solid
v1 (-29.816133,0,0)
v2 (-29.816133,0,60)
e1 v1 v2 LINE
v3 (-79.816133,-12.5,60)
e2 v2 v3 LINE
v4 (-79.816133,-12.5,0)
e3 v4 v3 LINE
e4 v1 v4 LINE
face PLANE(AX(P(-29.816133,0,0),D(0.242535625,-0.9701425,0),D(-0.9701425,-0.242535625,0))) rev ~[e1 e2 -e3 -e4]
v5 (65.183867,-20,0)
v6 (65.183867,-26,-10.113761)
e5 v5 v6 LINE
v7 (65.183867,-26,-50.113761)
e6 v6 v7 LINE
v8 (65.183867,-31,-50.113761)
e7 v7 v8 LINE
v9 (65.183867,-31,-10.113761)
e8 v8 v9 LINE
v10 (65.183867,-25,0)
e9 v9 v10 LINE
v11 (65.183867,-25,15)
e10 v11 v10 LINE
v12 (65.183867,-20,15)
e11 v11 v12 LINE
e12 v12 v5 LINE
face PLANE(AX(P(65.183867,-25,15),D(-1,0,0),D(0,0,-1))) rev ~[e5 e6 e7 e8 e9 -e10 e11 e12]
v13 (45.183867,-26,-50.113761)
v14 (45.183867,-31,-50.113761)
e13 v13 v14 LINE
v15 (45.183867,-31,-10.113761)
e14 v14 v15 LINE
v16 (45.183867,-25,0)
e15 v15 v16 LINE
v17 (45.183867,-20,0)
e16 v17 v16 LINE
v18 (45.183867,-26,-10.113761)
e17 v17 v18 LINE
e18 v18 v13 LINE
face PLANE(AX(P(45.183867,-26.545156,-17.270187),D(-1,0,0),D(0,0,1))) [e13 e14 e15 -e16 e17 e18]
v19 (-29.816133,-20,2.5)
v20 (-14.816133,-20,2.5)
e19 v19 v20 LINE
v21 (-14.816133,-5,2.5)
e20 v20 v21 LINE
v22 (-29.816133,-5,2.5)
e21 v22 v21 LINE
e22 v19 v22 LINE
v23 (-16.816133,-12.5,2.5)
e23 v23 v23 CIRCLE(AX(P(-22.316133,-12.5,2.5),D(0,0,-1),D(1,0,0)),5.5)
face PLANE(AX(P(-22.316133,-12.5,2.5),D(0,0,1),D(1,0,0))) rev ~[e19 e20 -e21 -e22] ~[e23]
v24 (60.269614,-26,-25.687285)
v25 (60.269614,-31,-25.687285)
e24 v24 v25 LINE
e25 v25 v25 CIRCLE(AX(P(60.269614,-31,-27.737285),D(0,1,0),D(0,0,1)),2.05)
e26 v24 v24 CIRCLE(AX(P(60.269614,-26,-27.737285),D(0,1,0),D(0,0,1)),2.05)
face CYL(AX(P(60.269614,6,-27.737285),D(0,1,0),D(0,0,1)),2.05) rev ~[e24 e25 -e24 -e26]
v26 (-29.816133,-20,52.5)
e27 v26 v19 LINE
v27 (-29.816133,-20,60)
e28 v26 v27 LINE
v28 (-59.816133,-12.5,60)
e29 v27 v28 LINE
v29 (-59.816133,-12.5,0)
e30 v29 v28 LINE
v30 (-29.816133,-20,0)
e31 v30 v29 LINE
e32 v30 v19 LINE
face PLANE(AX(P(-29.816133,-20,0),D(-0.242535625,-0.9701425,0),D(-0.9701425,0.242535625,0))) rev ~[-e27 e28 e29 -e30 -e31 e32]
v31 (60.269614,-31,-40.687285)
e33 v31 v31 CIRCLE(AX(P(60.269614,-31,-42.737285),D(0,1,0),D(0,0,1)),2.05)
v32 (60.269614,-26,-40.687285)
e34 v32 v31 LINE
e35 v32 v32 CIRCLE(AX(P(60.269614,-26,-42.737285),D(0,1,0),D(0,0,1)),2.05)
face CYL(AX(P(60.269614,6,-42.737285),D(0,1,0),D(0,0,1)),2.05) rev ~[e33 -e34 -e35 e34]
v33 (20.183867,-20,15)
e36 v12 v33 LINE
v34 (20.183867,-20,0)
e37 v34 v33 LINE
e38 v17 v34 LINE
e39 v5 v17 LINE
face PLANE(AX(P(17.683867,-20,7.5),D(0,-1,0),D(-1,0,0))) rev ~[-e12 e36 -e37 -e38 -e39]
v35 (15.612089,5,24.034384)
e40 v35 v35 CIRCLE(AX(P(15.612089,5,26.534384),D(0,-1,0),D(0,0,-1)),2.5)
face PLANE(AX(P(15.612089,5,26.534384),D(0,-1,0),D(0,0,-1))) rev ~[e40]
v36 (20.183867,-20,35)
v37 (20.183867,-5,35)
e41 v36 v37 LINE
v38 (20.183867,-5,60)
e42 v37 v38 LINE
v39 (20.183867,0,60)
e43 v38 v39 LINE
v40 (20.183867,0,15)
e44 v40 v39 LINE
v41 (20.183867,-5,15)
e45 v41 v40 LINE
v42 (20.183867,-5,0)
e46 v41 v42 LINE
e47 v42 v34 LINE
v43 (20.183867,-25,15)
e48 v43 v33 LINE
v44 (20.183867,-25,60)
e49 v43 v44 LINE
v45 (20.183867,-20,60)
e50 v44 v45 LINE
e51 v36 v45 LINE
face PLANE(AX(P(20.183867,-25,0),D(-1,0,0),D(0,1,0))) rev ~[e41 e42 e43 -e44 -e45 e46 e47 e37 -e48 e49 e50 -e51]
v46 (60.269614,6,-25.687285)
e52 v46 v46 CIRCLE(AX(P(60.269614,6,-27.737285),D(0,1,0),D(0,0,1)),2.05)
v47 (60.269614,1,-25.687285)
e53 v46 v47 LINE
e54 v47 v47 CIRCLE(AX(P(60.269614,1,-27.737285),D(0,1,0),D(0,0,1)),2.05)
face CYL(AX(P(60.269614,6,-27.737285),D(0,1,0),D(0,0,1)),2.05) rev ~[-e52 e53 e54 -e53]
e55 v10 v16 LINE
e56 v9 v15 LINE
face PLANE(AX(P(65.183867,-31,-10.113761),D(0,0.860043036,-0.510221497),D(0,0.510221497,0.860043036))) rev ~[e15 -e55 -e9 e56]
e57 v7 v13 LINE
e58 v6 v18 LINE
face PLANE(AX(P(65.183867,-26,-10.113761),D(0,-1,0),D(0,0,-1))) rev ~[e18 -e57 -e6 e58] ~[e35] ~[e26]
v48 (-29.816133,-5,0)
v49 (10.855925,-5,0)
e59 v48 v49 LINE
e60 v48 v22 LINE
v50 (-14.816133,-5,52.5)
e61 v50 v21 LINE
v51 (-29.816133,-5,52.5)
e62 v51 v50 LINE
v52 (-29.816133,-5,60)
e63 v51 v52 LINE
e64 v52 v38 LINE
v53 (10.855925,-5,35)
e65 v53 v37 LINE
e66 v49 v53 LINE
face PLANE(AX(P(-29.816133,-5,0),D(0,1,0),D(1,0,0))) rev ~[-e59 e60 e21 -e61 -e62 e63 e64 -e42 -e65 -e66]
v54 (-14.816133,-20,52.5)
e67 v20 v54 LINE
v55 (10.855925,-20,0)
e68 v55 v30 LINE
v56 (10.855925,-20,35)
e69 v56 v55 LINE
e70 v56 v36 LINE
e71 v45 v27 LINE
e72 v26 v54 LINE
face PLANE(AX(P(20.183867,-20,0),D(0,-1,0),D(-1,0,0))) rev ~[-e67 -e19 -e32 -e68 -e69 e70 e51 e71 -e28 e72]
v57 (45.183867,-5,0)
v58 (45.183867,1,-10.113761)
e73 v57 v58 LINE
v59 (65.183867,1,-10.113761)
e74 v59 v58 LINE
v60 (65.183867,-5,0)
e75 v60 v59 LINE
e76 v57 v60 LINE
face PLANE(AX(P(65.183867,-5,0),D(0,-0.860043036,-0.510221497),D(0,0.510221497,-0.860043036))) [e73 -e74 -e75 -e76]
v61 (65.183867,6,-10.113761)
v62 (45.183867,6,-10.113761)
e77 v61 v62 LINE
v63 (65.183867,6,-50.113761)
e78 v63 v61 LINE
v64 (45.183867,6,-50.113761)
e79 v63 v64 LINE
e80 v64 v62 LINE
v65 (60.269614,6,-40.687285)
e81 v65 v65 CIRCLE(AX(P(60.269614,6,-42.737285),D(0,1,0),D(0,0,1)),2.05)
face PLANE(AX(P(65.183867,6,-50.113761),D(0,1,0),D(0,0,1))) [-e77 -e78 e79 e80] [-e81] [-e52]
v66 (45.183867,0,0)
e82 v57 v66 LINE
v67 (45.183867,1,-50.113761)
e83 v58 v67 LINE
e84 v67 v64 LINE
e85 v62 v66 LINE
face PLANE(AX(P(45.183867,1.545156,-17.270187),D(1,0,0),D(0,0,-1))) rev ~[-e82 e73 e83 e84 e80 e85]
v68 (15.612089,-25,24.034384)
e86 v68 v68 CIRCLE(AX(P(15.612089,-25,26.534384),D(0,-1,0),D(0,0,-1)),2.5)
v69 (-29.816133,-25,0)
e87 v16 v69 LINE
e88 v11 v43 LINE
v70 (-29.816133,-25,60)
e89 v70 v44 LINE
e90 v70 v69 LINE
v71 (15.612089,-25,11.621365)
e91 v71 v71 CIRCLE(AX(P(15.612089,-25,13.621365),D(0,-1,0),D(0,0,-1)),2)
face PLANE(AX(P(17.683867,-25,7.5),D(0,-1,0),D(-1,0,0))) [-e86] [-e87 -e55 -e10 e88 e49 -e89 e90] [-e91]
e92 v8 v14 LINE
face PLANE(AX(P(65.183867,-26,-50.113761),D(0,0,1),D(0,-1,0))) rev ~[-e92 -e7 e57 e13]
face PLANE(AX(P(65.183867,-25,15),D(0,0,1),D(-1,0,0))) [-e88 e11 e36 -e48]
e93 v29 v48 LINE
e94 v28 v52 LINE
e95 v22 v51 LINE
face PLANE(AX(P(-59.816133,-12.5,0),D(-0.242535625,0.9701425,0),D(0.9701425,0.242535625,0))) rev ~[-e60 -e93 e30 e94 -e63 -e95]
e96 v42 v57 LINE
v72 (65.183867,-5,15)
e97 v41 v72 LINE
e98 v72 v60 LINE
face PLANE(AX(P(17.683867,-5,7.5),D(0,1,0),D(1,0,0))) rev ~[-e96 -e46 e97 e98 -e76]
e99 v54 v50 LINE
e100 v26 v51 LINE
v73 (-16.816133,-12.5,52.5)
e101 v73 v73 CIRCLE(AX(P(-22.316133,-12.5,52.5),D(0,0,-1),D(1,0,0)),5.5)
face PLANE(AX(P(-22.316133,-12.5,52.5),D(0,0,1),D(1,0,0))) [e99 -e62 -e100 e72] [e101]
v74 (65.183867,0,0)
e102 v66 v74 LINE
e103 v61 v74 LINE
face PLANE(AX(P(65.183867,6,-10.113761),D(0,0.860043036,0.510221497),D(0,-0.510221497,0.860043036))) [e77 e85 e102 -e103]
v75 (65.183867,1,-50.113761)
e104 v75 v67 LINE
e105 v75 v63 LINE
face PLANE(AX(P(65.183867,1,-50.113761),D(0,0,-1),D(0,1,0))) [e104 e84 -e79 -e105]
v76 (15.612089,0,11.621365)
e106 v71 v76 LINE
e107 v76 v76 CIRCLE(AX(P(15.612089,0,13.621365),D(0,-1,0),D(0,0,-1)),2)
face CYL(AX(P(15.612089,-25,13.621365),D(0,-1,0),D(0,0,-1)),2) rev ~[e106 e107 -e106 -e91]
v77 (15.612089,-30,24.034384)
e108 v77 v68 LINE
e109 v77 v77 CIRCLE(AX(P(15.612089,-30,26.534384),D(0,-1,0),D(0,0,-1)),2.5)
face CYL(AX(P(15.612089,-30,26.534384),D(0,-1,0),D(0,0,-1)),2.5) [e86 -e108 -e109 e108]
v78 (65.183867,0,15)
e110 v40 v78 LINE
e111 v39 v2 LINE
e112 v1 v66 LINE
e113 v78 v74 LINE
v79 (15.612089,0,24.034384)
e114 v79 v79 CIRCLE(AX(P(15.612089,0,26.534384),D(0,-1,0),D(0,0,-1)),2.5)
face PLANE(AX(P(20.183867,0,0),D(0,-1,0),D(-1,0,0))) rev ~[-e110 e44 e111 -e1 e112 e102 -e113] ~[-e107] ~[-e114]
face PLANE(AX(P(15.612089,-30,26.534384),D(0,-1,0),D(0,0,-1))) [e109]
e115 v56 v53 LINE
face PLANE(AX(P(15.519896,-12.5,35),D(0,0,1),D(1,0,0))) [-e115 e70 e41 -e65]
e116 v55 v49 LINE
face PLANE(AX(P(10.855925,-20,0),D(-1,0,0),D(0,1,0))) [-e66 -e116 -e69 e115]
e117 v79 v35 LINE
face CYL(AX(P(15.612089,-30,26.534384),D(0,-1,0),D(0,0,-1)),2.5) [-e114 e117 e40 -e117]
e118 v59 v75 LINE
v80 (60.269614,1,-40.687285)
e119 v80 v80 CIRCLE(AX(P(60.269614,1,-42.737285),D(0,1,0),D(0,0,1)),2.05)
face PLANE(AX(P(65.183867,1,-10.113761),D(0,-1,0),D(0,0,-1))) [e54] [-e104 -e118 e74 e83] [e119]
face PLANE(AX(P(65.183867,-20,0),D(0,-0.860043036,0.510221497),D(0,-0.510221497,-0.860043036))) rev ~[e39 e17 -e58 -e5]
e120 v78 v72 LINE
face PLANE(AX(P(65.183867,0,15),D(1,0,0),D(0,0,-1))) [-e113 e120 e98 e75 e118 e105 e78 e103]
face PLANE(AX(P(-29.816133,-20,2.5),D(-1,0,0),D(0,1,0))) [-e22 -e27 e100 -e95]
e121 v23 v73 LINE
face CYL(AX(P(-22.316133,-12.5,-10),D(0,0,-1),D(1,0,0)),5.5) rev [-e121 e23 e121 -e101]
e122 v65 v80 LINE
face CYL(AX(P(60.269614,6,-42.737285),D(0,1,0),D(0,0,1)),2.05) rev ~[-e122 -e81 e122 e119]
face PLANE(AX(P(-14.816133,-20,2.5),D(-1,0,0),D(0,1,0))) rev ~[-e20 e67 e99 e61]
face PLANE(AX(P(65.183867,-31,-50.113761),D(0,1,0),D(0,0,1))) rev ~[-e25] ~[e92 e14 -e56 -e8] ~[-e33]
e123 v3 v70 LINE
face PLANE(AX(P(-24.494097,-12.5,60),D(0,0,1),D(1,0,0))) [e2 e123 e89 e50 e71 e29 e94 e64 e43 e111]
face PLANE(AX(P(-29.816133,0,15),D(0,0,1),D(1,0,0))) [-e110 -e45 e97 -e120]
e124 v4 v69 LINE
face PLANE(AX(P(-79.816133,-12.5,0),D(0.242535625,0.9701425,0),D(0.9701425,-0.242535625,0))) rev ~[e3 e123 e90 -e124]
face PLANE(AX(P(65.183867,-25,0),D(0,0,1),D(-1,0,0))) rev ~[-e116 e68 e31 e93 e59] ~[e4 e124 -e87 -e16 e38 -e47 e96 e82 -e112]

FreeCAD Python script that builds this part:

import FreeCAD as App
import Part
import Sketcher

V = App.Vector
Q = App.Units.Quantity


def add_polygon(sketch, points):
    """Adds a closed chain of lines whose ends are joined by coincident constraints."""
    first, n = sketch.GeometryCount, len(points)
    for a, b in zip(points, points[1:] + points[:1]):
        sketch.addGeometry(Part.LineSegment(App.Vector(*a, 0), App.Vector(*b, 0)), False)
    for i in range(n):
        sketch.addConstraint(Sketcher.Constraint("Coincident", first + i, 2, first + (i + 1) % n, 1))

doc = App.newDocument("Part")
body = doc.addObject("PartDesign::Body", "Body")

# Sketch on XY plane
sketch1 = doc.addObject("Sketcher::SketchObject", "Sketch")
body.addObject(sketch1)
sketch1.AttachmentSupport = (doc.XY_Plane, [""])
sketch1.MapMode = "FlatFace"
add_polygon(sketch1, [(-30, -5), (20, -5), (20, 0), (-30, 0), (-80, -12), (-30, -25), (20, -25), (20, -20), (-30, -20), (-60, -12)])  # lines 0-9
sketch1.addConstraint(Sketcher.Constraint("Horizontal", 0))
sketch1.addConstraint(Sketcher.Constraint("Vertical", 1))
sketch1.addConstraint(Sketcher.Constraint("Horizontal", 2))
sketch1.addConstraint(Sketcher.Constraint("Horizontal", 5))
sketch1.addConstraint(Sketcher.Constraint("Vertical", 6))
sketch1.addConstraint(Sketcher.Constraint("Horizontal", 7))
sketch1.addConstraint(Sketcher.Constraint("PointOnObject", 1, 2, -1))
sketch1.addConstraint(Sketcher.Constraint("Parallel", 4, 8))
sketch1.addConstraint(Sketcher.Constraint("Parallel", 3, 9))
sketch1.addConstraint(Sketcher.Constraint("Horizontal", 3, 2, 8, 2))
sketch1.addConstraint(Sketcher.Constraint("Vertical", 2, 2, 4, 2))
sketch1.addConstraint(Sketcher.Constraint("Vertical", 1, 2, 5, 2))
sketch1.addConstraint(Sketcher.Constraint("Vertical", 4, 2, 7, 2))
sketch1.addConstraint(Sketcher.Constraint("Vertical", 7, 2, 9, 2))
sketch1.addConstraint(Sketcher.Constraint("Equal", 1, 6))
sketch1.addConstraint(Sketcher.Constraint("DistanceX", 0, 1, 0, 2, Q("50 mm")))
sketch1.addConstraint(Sketcher.Constraint("DistanceY", 1, 1, 1, 2, Q("5 mm")))
sketch1.addConstraint(Sketcher.Constraint("DistanceY", 4, 2, -1, 1, Q("25 mm")))
sketch1.addConstraint(Sketcher.Constraint("DistanceX", 3, 2, 2, 2, Q("50 mm")))
sketch1.addConstraint(Sketcher.Constraint("DistanceX", -1, 1, 0, 2, Q("20.183867 mm")))
pad1 = doc.addObject("PartDesign::Pad", "Pad")
body.addObject(pad1)
pad1.Profile = sketch1
pad1.Length = 60

# Sketch on XY plane
sketch2 = doc.addObject("Sketcher::SketchObject", "Sketch001")
body.addObject(sketch2)
sketch2.AttachmentSupport = (doc.XY_Plane, [""])
sketch2.MapMode = "FlatFace"
sketch2.AttachmentOffset = App.Placement(V(0, 0, 2.5), App.Rotation())
add_polygon(sketch2, [(-30, -5), (-30, -20), (-15, -20), (-15, -5)])  # lines 0-3
sketch2.addConstraint(Sketcher.Constraint("Vertical", 0))
sketch2.addConstraint(Sketcher.Constraint("Horizontal", 1))
sketch2.addConstraint(Sketcher.Constraint("Vertical", 2))
sketch2.addConstraint(Sketcher.Constraint("Horizontal", 3))
sketch2.addConstraint(Sketcher.Constraint("Equal", 3, 0))
sketch2.addConstraint(Sketcher.Constraint("DistanceX", 1, 1, 1, 2, Q("15 mm")))
sketch2.addConstraint(Sketcher.Constraint("DistanceY", 0, 2, -1, 1, Q("20 mm")))
sketch2.addConstraint(Sketcher.Constraint("DistanceX", 0, 2, -1, 1, Q("29.816133 mm")))
pad2 = doc.addObject("PartDesign::Pad", "Pad001")
body.addObject(pad2)
pad2.Profile = sketch2
pad2.Length = 50

# Sketch on XY plane
sketch3 = doc.addObject("Sketcher::SketchObject", "Sketch002")
body.addObject(sketch3)
sketch3.AttachmentSupport = (doc.XY_Plane, [""])
sketch3.MapMode = "FlatFace"
sketch3.AttachmentOffset = App.Placement(V(0, 0, -10), App.Rotation())
sketch3.addGeometry(Part.Circle(V(-22, -12, 0), V(0, 0, 1), 6), False)
sketch3.addConstraint(Sketcher.Constraint("Diameter", 0, Q("11 mm")))
sketch3.addConstraint(Sketcher.Constraint("DistanceY", 0, 3, -1, 1, Q("12.5 mm")))
sketch3.addConstraint(Sketcher.Constraint("DistanceX", 0, 3, -1, 1, Q("22.316133 mm")))
pocket1 = doc.addObject("PartDesign::Pocket", "Pocket")
body.addObject(pocket1)
pocket1.Profile = sketch3
pocket1.Length = 105
pocket1.Reversed = True

# Sketch on XY plane
sketch4 = doc.addObject("Sketcher::SketchObject", "Sketch003")
body.addObject(sketch4)
sketch4.AttachmentSupport = (doc.XY_Plane, [""])
sketch4.MapMode = "FlatFace"
add_polygon(sketch4, [(11, -5), (11, -20), (20, -20), (20, -5)])  # lines 0-3
sketch4.addConstraint(Sketcher.Constraint("Vertical", 0))
sketch4.addConstraint(Sketcher.Constraint("Horizontal", 1))
sketch4.addConstraint(Sketcher.Constraint("Vertical", 2))
sketch4.addConstraint(Sketcher.Constraint("Horizontal", 3))
sketch4.addConstraint(Sketcher.Constraint("DistanceY", 0, 2, 0, 1, Q("15 mm")))
sketch4.addConstraint(Sketcher.Constraint("DistanceY", 0, 2, -1, 1, Q("20 mm")))
sketch4.addConstraint(Sketcher.Constraint("DistanceX", 1, 1, 1, 2, Q("9.327942 mm")))
sketch4.addConstraint(Sketcher.Constraint("DistanceX", -1, 1, 0, 2, Q("10.855925 mm")))
pad3 = doc.addObject("PartDesign::Pad", "Pad002")
body.addObject(pad3)
pad3.Profile = sketch4
pad3.Length = 35

# Sketch on XZ plane
sketch5 = doc.addObject("Sketcher::SketchObject", "Sketch004")
body.addObject(sketch5)
sketch5.AttachmentSupport = (doc.XZ_Plane, [""])
sketch5.MapMode = "FlatFace"
add_polygon(sketch5, [(-30, 0), (-30, 15), (65, 15), (65, 0)])  # lines 0-3
sketch5.addConstraint(Sketcher.Constraint("Vertical", 0))
sketch5.addConstraint(Sketcher.Constraint("Horizontal", 1))
sketch5.addConstraint(Sketcher.Constraint("Vertical", 2))
sketch5.addConstraint(Sketcher.Constraint("Horizontal", 3))
sketch5.addConstraint(Sketcher.Constraint("PointOnObject", 2, 2, -1))
sketch5.addConstraint(Sketcher.Constraint("DistanceX", 1, 1, 1, 2, Q("95 mm")))
sketch5.addConstraint(Sketcher.Constraint("DistanceY", 0, 1, 0, 2, Q("15 mm")))
sketch5.addConstraint(Sketcher.Constraint("DistanceX", 0, 2, -1, 1, Q("29.816133 mm")))
pad4 = doc.addObject("PartDesign::Pad", "Pad003")
body.addObject(pad4)
pad4.Profile = sketch5
pad4.Length = 5

# Sketch on XZ plane
sketch6 = doc.addObject("Sketcher::SketchObject", "Sketch005")
body.addObject(sketch6)
sketch6.AttachmentSupport = (doc.XZ_Plane, [""])
sketch6.MapMode = "FlatFace"
sketch6.AttachmentOffset = App.Placement(V(0, 0, 25), App.Rotation())
add_polygon(sketch6, [(65, 0), (65, 15), (-30, 15), (-30, 0)])  # lines 0-3
sketch6.addConstraint(Sketcher.Constraint("Vertical", 0))
sketch6.addConstraint(Sketcher.Constraint("Horizontal", 1))
sketch6.addConstraint(Sketcher.Constraint("Vertical", 2))
sketch6.addConstraint(Sketcher.Constraint("Horizontal", 3))
sketch6.addConstraint(Sketcher.Constraint("PointOnObject", 2, 2, -1))
sketch6.addConstraint(Sketcher.Constraint("DistanceX", 1, 2, 1, 1, Q("95 mm")))
sketch6.addConstraint(Sketcher.Constraint("DistanceY", 0, 1, 0, 2, Q("15 mm")))
sketch6.addConstraint(Sketcher.Constraint("DistanceX", -1, 1, 0, 2, Q("65.183867 mm")))
pad5 = doc.addObject("PartDesign::Pad", "Pad004")
body.addObject(pad5)
pad5.Profile = sketch6
pad5.Length = 5
pad5.Reversed = True

# Sketch on YZ plane
sketch7 = doc.addObject("Sketcher::SketchObject", "Sketch006")
body.addObject(sketch7)
sketch7.AttachmentSupport = (doc.YZ_Plane, [""])
sketch7.MapMode = "FlatFace"
sketch7.AttachmentOffset = App.Placement(V(0, 0, 65.183867), App.Rotation())
add_polygon(sketch7, [(0, 0), (0, 15), (-5, 15), (-5, 0), (1, -10), (1, -50), (6, -50), (6, -10)])  # lines 0-7
add_polygon(sketch7, [(-20, 15), (-25, 15), (-25, 0), (-31, -10), (-31, -50), (-26, -50), (-26, -10), (-20, 0)])  # lines 8-15
sketch7.addConstraint(Sketcher.Constraint("Vertical", 0))
sketch7.addConstraint(Sketcher.Constraint("Horizontal", 1))
sketch7.addConstraint(Sketcher.Constraint("Vertical", 2))
sketch7.addConstraint(Sketcher.Constraint("Vertical", 4))
sketch7.addConstraint(Sketcher.Constraint("Horizontal", 5))
sketch7.addConstraint(Sketcher.Constraint("Vertical", 6))
sketch7.addConstraint(Sketcher.Constraint("Horizontal", 8))
sketch7.addConstraint(Sketcher.Constraint("Vertical", 9))
sketch7.addConstraint(Sketcher.Constraint("Vertical", 11))
sketch7.addConstraint(Sketcher.Constraint("Horizontal", 12))
sketch7.addConstraint(Sketcher.Constraint("Vertical", 13))
sketch7.addConstraint(Sketcher.Constraint("Vertical", 15))
sketch7.addConstraint(Sketcher.Constraint("Coincident", 7, 2, -1, 1))
sketch7.addConstraint(Sketcher.Constraint("PointOnObject", 2, 2, -1))
sketch7.addConstraint(Sketcher.Constraint("PointOnObject", 9, 2, -1))
sketch7.addConstraint(Sketcher.Constraint("PointOnObject", 14, 2, -1))
sketch7.addConstraint(Sketcher.Constraint("Parallel", 3, 7))
sketch7.addConstraint(Sketcher.Constraint("Parallel", 10, 14))
sketch7.addConstraint(Sketcher.Constraint("Horizontal", 3, 2, 6, 2))
sketch7.addConstraint(Sketcher.Constraint("Horizontal", 1, 2, 8, 2))
sketch7.addConstraint(Sketcher.Constraint("Horizontal", 6, 2, 10, 2))
sketch7.addConstraint(Sketcher.Constraint("Horizontal", 5, 2, 11, 2))
sketch7.addConstraint(Sketcher.Constraint("Horizontal", 10, 2, 13, 2))
sketch7.addConstraint(Sketcher.Constraint("Equal", 5, 8))
sketch7.addConstraint(Sketcher.Constraint("Equal", 7, 10))
sketch7.addConstraint(Sketcher.Constraint("DistanceX", 1, 2, 1, 1, Q("5 mm")))
sketch7.addConstraint(Sketcher.Constraint("DistanceY", 0, 1, 0, 2, Q("15 mm")))
sketch7.addConstraint(Sketcher.Constraint("DistanceY", 4, 2, 4, 1, Q("40 mm")))
sketch7.addConstraint(Sketcher.Constraint("DistanceX", -1, 1, 3, 2, Q("1 mm")))
sketch7.addConstraint(Sketcher.Constraint("DistanceX", 8, 2, -1, 1, Q("25 mm")))
sketch7.addConstraint(Sketcher.Constraint("Distance", 3, Q("11.759599 mm")))
pad6 = doc.addObject("PartDesign::Pad", "Pad005")
body.addObject(pad6)
pad6.Profile = sketch7
pad6.Length = 20
pad6.Reversed = True

# Sketch on XZ plane
sketch8 = doc.addObject("Sketcher::SketchObject", "Sketch007")
body.addObject(sketch8)
sketch8.AttachmentSupport = (doc.XZ_Plane, [""])
sketch8.MapMode = "FlatFace"
sketch8.AttachmentOffset = App.Placement(V(0, 0, -6), App.Rotation())
sketch8.addGeometry(Part.Circle(V(60.3, -42.7, 0), V(0, 0, 1), 2), False)
sketch8.addGeometry(Part.Circle(V(60.3, -27.7, 0), V(0, 0, 1), 2), False)
sketch8.addConstraint(Sketcher.Constraint("Equal", 0, 1))
sketch8.addConstraint(Sketcher.Constraint("Vertical", 0, 3, 1, 3))
sketch8.addConstraint(Sketcher.Constraint("Diameter", 0, Q("4.1 mm")))
sketch8.addConstraint(Sketcher.Constraint("DistanceY", 0, 3, 1, 3, Q("15 mm")))
sketch8.addConstraint(Sketcher.Constraint("DistanceX", -1, 1, 0, 3, Q("60.269614 mm")))
sketch8.addConstraint(Sketcher.Constraint("DistanceY", 0, 3, -1, 1, Q("42.737285 mm")))
pocket2 = doc.addObject("PartDesign::Pocket", "Pocket001")
body.addObject(pocket2)
pocket2.Profile = sketch8
pocket2.Length = 50
pocket2.Reversed = True

# Sketch on XZ plane
sketch9 = doc.addObject("Sketcher::SketchObject", "Sketch008")
body.addObject(sketch9)
sketch9.AttachmentSupport = (doc.XZ_Plane, [""])
sketch9.MapMode = "FlatFace"
sketch9.AttachmentOffset = App.Placement(V(0, 0, 25), App.Rotation())
sketch9.addGeometry(Part.Circle(V(15.6, 13.6, 0), V(0, 0, 1), 2), False)
sketch9.addConstraint(Sketcher.Constraint("Diameter", 0, Q("4 mm")))
sketch9.addConstraint(Sketcher.Constraint("DistanceX", -1, 1, 0, 3, Q("15.612089 mm")))
sketch9.addConstraint(Sketcher.Constraint("DistanceY", -1, 1, 0, 3, Q("13.621365 mm")))
pocket3 = doc.addObject("PartDesign::Pocket", "Pocket002")
body.addObject(pocket3)
pocket3.Profile = sketch9
pocket3.Type = "ThroughAll"

# Sketch on XZ plane
sketch10 = doc.addObject("Sketcher::SketchObject", "Sketch009")
body.addObject(sketch10)
sketch10.AttachmentSupport = (doc.XZ_Plane, [""])
sketch10.MapMode = "FlatFace"
sketch10.AttachmentOffset = App.Placement(V(0, 0, 30), App.Rotation())
sketch10.addGeometry(Part.Circle(V(15.6, 26.5, 0), V(0, 0, 1), 2.5), False)
sketch10.addConstraint(Sketcher.Constraint("Diameter", 0, Q("5 mm")))
sketch10.addConstraint(Sketcher.Constraint("DistanceX", -1, 1, 0, 3, Q("15.612089 mm")))
sketch10.addConstraint(Sketcher.Constraint("DistanceY", -1, 1, 0, 3, Q("26.534384 mm")))
pad7 = doc.addObject("PartDesign::Pad", "Pad006")
body.addObject(pad7)
pad7.Profile = sketch10
pad7.Length = 35
pad7.Reversed = True

doc.recompute()
